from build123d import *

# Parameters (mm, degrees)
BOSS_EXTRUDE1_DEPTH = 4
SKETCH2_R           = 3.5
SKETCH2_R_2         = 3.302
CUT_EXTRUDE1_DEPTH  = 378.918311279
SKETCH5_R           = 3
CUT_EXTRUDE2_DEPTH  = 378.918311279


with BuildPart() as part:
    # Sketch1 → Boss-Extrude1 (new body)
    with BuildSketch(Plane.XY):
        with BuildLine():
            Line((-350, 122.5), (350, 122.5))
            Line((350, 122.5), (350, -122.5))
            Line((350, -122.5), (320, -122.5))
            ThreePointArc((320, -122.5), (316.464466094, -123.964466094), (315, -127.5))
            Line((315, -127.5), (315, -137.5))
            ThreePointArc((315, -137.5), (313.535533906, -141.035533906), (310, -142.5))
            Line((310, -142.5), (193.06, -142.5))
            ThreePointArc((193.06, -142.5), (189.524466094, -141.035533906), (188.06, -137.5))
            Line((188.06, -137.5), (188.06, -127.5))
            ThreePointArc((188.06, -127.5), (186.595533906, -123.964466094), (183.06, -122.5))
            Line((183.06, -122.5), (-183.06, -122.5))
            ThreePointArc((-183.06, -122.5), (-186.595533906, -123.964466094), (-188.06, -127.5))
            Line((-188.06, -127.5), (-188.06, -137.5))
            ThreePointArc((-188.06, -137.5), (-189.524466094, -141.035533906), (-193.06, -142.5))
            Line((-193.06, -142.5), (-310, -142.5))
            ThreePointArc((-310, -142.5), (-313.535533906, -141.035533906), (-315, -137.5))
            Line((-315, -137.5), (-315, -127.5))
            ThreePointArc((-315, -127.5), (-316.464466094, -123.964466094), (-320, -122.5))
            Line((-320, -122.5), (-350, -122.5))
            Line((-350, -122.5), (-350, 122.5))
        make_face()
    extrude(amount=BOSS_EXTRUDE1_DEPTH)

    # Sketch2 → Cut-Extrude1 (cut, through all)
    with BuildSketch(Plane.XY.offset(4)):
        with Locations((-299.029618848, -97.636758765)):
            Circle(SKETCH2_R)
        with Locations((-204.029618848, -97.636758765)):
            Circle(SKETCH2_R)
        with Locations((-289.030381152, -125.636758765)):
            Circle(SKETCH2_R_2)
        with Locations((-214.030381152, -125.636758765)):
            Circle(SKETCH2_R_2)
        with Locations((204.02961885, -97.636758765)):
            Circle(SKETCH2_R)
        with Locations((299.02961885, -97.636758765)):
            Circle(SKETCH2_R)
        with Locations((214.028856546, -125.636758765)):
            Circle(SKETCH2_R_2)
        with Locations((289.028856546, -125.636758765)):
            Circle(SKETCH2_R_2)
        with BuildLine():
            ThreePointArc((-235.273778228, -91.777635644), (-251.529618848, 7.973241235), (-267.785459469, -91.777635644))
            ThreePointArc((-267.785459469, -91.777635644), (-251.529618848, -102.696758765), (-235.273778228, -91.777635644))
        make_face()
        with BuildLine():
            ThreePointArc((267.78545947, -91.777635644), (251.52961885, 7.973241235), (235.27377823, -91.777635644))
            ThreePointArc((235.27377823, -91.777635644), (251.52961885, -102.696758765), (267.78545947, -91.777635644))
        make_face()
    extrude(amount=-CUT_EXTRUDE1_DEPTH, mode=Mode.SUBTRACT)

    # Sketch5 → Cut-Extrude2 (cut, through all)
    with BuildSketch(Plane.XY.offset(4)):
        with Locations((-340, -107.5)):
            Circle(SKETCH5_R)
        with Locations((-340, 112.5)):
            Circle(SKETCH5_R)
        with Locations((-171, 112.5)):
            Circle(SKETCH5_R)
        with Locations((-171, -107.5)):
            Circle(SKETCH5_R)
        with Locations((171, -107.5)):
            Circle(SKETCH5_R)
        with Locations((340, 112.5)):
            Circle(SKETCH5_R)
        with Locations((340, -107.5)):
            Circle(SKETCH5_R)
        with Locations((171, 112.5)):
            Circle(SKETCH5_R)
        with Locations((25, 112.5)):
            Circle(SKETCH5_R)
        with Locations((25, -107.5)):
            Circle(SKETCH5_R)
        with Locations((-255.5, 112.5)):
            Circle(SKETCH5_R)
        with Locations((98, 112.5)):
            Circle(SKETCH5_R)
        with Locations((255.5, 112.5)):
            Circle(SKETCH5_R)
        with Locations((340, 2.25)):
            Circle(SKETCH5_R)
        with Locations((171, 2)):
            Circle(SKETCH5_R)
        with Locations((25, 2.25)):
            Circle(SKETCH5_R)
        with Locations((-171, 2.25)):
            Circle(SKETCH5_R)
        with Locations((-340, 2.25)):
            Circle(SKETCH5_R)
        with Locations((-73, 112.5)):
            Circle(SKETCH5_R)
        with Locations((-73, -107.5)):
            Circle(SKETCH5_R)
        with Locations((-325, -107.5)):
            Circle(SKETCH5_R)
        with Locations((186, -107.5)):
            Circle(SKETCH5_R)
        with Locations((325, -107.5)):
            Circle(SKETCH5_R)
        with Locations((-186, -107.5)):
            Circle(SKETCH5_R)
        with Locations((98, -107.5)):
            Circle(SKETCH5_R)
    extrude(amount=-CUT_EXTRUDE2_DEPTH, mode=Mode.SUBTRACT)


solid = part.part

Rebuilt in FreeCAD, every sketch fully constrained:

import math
import FreeCAD as App
import Part
import Sketcher
from FreeCAD import Vector

doc = App.newDocument("Part")
body = doc.addObject("PartDesign::Body", "Body")

# Sketch on XY plane
sketch1 = body.newObject("Sketcher::SketchObject", "Sketch")
sketch1.AttachmentSupport = (doc.getObject("XY_Plane"), [""])
sketch1.MapMode = "FlatFace"
sketch1.addGeometry([
    Part.LineSegment(Vector(350, 122.5, 0), Vector(-350, 122.5, 0)),  # 0
    Part.LineSegment(Vector(-350, 122.5, 0), Vector(-350, -122.5, 0)),  # 1
    Part.LineSegment(Vector(-350, -122.5, 0), Vector(-320, -122.5, 0)),  # 2
    Part.ArcOfCircle(Part.Circle(Vector(-320, -127.5, 0), Vector(0, 0, 1), 5), math.radians(0), math.radians(90)),  # 3
    Part.LineSegment(Vector(-315, -127.5, 0), Vector(-315, -137.5, 0)),  # 4
    Part.ArcOfCircle(Part.Circle(Vector(-310, -137.5, 0), Vector(0, 0, 1), 5), math.radians(180), math.radians(270)),  # 5
    Part.LineSegment(Vector(-310, -142.5, 0), Vector(-193.06, -142.5, 0)),  # 6
    Part.ArcOfCircle(Part.Circle(Vector(-193.06, -137.5, 0), Vector(0, 0, 1), 5), math.radians(-90), math.radians(0)),  # 7
    Part.LineSegment(Vector(-188.06, -137.5, 0), Vector(-188.06, -127.5, 0)),  # 8
    Part.ArcOfCircle(Part.Circle(Vector(-183.06, -127.5, 0), Vector(0, 0, 1), 5), math.radians(90), math.radians(180)),  # 9
    Part.LineSegment(Vector(-183.06, -122.5, 0), Vector(183.06, -122.5, 0)),  # 10
    Part.ArcOfCircle(Part.Circle(Vector(183.06, -127.5, 0), Vector(0, 0, 1), 5), math.radians(0), math.radians(90)),  # 11
    Part.LineSegment(Vector(188.06, -127.5, 0), Vector(188.06, -137.5, 0)),  # 12
    Part.ArcOfCircle(Part.Circle(Vector(193.06, -137.5, 0), Vector(0, 0, 1), 5), math.radians(180), math.radians(270)),  # 13
    Part.LineSegment(Vector(193.06, -142.5, 0), Vector(310, -142.5, 0)),  # 14
    Part.ArcOfCircle(Part.Circle(Vector(310, -137.5, 0), Vector(0, 0, 1), 5), math.radians(-90), math.radians(0)),  # 15
    Part.LineSegment(Vector(315, -137.5, 0), Vector(315, -127.5, 0)),  # 16
    Part.ArcOfCircle(Part.Circle(Vector(320, -127.5, 0), Vector(0, 0, 1), 5), math.radians(90), math.radians(180)),  # 17
    Part.LineSegment(Vector(320, -122.5, 0), Vector(350, -122.5, 0)),  # 18
    Part.LineSegment(Vector(350, -122.5, 0), Vector(350, 122.5, 0)),  # 19
], False)
sketch1.addConstraint([
    Sketcher.Constraint("Coincident", 0, 2, 1, 1),
    Sketcher.Constraint("Coincident", 1, 2, 2, 1),
    Sketcher.Constraint("Tangent", 2, 2, 3, 2),
    Sketcher.Constraint("Tangent", 3, 1, 4, 1),
    Sketcher.Constraint("Tangent", 4, 2, 5, 1),
    Sketcher.Constraint("Tangent", 5, 2, 6, 1),
    Sketcher.Constraint("Tangent", 6, 2, 7, 1),
    Sketcher.Constraint("Tangent", 7, 2, 8, 1),
    Sketcher.Constraint("Tangent", 8, 2, 9, 2),
    Sketcher.Constraint("Tangent", 9, 1, 10, 1),
    Sketcher.Constraint("Tangent", 10, 2, 11, 2),
    Sketcher.Constraint("Tangent", 11, 1, 12, 1),
    Sketcher.Constraint("Tangent", 12, 2, 13, 1),
    Sketcher.Constraint("Tangent", 13, 2, 14, 1),
    Sketcher.Constraint("Tangent", 14, 2, 15, 1),
    Sketcher.Constraint("Tangent", 15, 2, 16, 1),
    Sketcher.Constraint("Tangent", 16, 2, 17, 2),
    Sketcher.Constraint("Tangent", 17, 1, 18, 1),
    Sketcher.Constraint("Coincident", 18, 2, 19, 1),
    Sketcher.Constraint("Coincident", 19, 2, 0, 1),
    Sketcher.Constraint("Horizontal", 0),
    Sketcher.Constraint("Vertical", 1),
    Sketcher.Constraint("Horizontal", 2),
    Sketcher.Constraint("Vertical", 4),
    Sketcher.Constraint("Horizontal", 6),
    Sketcher.Constraint("Vertical", 8),
    Sketcher.Constraint("Horizontal", 10),
    Sketcher.Constraint("Vertical", 12),
    Sketcher.Constraint("Horizontal", 14),
    Sketcher.Constraint("Vertical", 16),
    Sketcher.Constraint("Horizontal", 18),
    Sketcher.Constraint("Vertical", 19),
    Sketcher.Constraint("Equal", 3, 5),
    Sketcher.Constraint("Equal", 5, 7),
    Sketcher.Constraint("Equal", 7, 9),
    Sketcher.Constraint("Equal", 9, 11),
    Sketcher.Constraint("Equal", 11, 13),
    Sketcher.Constraint("Equal", 13, 15),
    Sketcher.Constraint("Equal", 15, 17),
    Sketcher.Constraint("Symmetric", 0, 2, 18, 2, -1, 1),
    Sketcher.Constraint("Symmetric", 7, 3, 13, 3, -2),
    Sketcher.Constraint("Symmetric", 3, 3, 17, 3, -2),
    Sketcher.Constraint("Horizontal", 3, 3, 9, 3),
    Sketcher.Constraint("Radius", 3, 5.0),
    Sketcher.Constraint("DistanceX", 0, 2, 0, 1, 700.0),
    Sketcher.Constraint("DistanceX", 2, 1, 2, 2, 30.0),
    Sketcher.Constraint("DistanceY", 1, 2, 1, 1, 245.0),
    Sketcher.Constraint("DistanceY", 4, 2, 4, 1, 10.0),
    Sketcher.Constraint("DistanceX", 6, 1, 6, 2, 116.94),
])
pad1 = body.newObject("PartDesign::Pad", "Pad")
pad1.Profile = sketch1
pad1.Length = 4

# Sketch on XY plane
sketch2 = body.newObject("Sketcher::SketchObject", "Sketch001")
sketch2.AttachmentSupport = (doc.getObject("XY_Plane"), [""])
sketch2.MapMode = "FlatFace"
sketch2.AttachmentOffset = App.Placement(Vector(0, 0, 4), App.Rotation())
sketch2.addGeometry([
    Part.Circle(Vector(-299.029619, -97.636759, 0), Vector(0, 0, 1), 3.5),  # 0
    Part.Circle(Vector(-204.029619, -97.636759, 0), Vector(0, 0, 1), 3.5),  # 1
    Part.Circle(Vector(-289.030381, -125.636759, 0), Vector(0, 0, 1), 3.302),  # 2
    Part.Circle(Vector(-214.030381, -125.636759, 0), Vector(0, 0, 1), 3.302),  # 3
    Part.Circle(Vector(204.029619, -97.636759, 0), Vector(0, 0, 1), 3.5),  # 4
    Part.Circle(Vector(299.029619, -97.636759, 0), Vector(0, 0, 1), 3.5),  # 5
    Part.Circle(Vector(214.028857, -125.636759, 0), Vector(0, 0, 1), 3.302),  # 6
    Part.Circle(Vector(289.028857, -125.636759, 0), Vector(0, 0, 1), 3.302),  # 7
    Part.ArcOfCircle(Part.Circle(Vector(-251.529619, -43.226759, 0), Vector(0, 0, 1), 51.2), math.radians(-71.488385), math.radians(251.488385)),  # 8
    Part.ArcOfCircle(Part.Circle(Vector(-251.529619, -85.136759, 0), Vector(0, 0, 1), 17.56), math.radians(-157.77888), math.radians(-22.22112)),  # 9
    Part.ArcOfCircle(Part.Circle(Vector(251.529619, -43.226759, 0), Vector(0, 0, 1), 51.2), math.radians(-71.488385), math.radians(251.488385)),  # 10
    Part.ArcOfCircle(Part.Circle(Vector(251.529619, -85.136759, 0), Vector(0, 0, 1), 17.56), math.radians(-157.77888), math.radians(-22.22112)),  # 11
], False)
sketch2.addConstraint([
    Sketcher.Constraint("Coincident", 8, 1, 9, 2),
    Sketcher.Constraint("Coincident", 9, 1, 8, 2),
    Sketcher.Constraint("Coincident", 10, 1, 11, 2),
    Sketcher.Constraint("Coincident", 11, 1, 10, 2),
    Sketcher.Constraint("Equal", 0, 1),
    Sketcher.Constraint("Equal", 2, 3),
    Sketcher.Constraint("Equal", 1, 4),
    Sketcher.Constraint("Equal", 4, 5),
    Sketcher.Constraint("Equal", 3, 6),
    Sketcher.Constraint("Equal", 6, 7),
    Sketcher.Constraint("Equal", 8, 10),
    Sketcher.Constraint("Equal", 9, 11),
    Sketcher.Constraint("Symmetric", 1, 3, 4, 3, -2),
    Sketcher.Constraint("Symmetric", 0, 3, 5, 3, -2),
    Sketcher.Constraint("Symmetric", 8, 3, 10, 3, -2),
    Sketcher.Constraint("Symmetric", 9, 3, 11, 3, -2),
    Sketcher.Constraint("Horizontal", 0, 3, 1, 3),
    Sketcher.Constraint("Horizontal", 2, 3, 3, 3),
    Sketcher.Constraint("Horizontal", 3, 3, 6, 3),
    Sketcher.Constraint("Horizontal", 6, 3, 7, 3),
    Sketcher.Constraint("Horizontal", 8, 1, 9, 1),
    Sketcher.Constraint("Diameter", 0, 7.0),
    Sketcher.Constraint("Radius", 8, 51.2),
    Sketcher.Constraint("Radius", 9, 17.56),
    Sketcher.Constraint("Diameter", 2, 6.604),
    Sketcher.Constraint("DistanceX", 0, 3, 1, 3, 95.0),
    Sketcher.Constraint("DistanceY", 2, 3, 0, 3, 28.0),
    Sketcher.Constraint("DistanceX", 2, 3, 3, 3, 75.0),
    Sketcher.Constraint("DistanceX", 6, 3, 7, 3, 75.0),
    Sketcher.Constraint("DistanceX", 0, 3, 8, 3, 47.5),
    Sketcher.Constraint("DistanceY", 0, 3, 9, 3, 12.5),
    Sketcher.Constraint("DistanceX", 3, 3, 4, 3, 418.06),
    Sketcher.Constraint("DistanceY", 0, 3, 8, 3, 54.41),
    Sketcher.Constraint("DistanceX", 0, 3, -1, 1, 299.029619),
    Sketcher.Constraint("DistanceY", 0, 3, -1, 1, 97.636759),
    Sketcher.Constraint("DistanceX", 6, 3, 11, 1, 21.244922),
])
pocket1 = body.newObject("PartDesign::Pocket", "Pocket")
pocket1.Profile = sketch2
pocket1.Type = "ThroughAll"

# Sketch on XY plane
sketch3 = body.newObject("Sketcher::SketchObject", "Sketch002")
sketch3.AttachmentSupport = (doc.getObject("XY_Plane"), [""])
sketch3.MapMode = "FlatFace"
sketch3.AttachmentOffset = App.Placement(Vector(0, 0, 4), App.Rotation())
sketch3.addGeometry([
    Part.Circle(Vector(-340, -107.5, 0), Vector(0, 0, 1), 3),  # 0
    Part.Circle(Vector(-340, 112.5, 0), Vector(0, 0, 1), 3),  # 1
    Part.Circle(Vector(-171, 112.5, 0), Vector(0, 0, 1), 3),  # 2
    Part.Circle(Vector(-171, -107.5, 0), Vector(0, 0, 1), 3),  # 3
    Part.Circle(Vector(171, -107.5, 0), Vector(0, 0, 1), 3),  # 4
    Part.Circle(Vector(340, 112.5, 0), Vector(0, 0, 1), 3),  # 5
    Part.Circle(Vector(340, -107.5, 0), Vector(0, 0, 1), 3),  # 6
    Part.Circle(Vector(171, 112.5, 0), Vector(0, 0, 1), 3),  # 7
    Part.Circle(Vector(25, 112.5, 0), Vector(0, 0, 1), 3),  # 8
    Part.Circle(Vector(25, -107.5, 0), Vector(0, 0, 1), 3),  # 9
    Part.Circle(Vector(-255.5, 112.5, 0), Vector(0, 0, 1), 3),  # 10
    Part.Circle(Vector(98, 112.5, 0), Vector(0, 0, 1), 3),  # 11
    Part.Circle(Vector(255.5, 112.5, 0), Vector(0, 0, 1), 3),  # 12
    Part.Circle(Vector(340, 2.25, 0), Vector(0, 0, 1), 3),  # 13
    Part.Circle(Vector(171, 2, 0), Vector(0, 0, 1), 3),  # 14
    Part.Circle(Vector(25, 2.25, 0), Vector(0, 0, 1), 3),  # 15
    Part.Circle(Vector(-171, 2.25, 0), Vector(0, 0, 1), 3),  # 16
    Part.Circle(Vector(-340, 2.25, 0), Vector(0, 0, 1), 3),  # 17
    Part.Circle(Vector(-73, 112.5, 0), Vector(0, 0, 1), 3),  # 18
    Part.Circle(Vector(-73, -107.5, 0), Vector(0, 0, 1), 3),  # 19
    Part.Circle(Vector(-325, -107.5, 0), Vector(0, 0, 1), 3),  # 20
    Part.Circle(Vector(186, -107.5, 0), Vector(0, 0, 1), 3),  # 21
    Part.Circle(Vector(325, -107.5, 0), Vector(0, 0, 1), 3),  # 22
    Part.Circle(Vector(-186, -107.5, 0), Vector(0, 0, 1), 3),  # 23
    Part.Circle(Vector(98, -107.5, 0), Vector(0, 0, 1), 3),  # 24
], False)
sketch3.addConstraint([
    Sketcher.Constraint("Equal", 0, 1),
    Sketcher.Constraint("Equal", 1, 2),
    Sketcher.Constraint("Equal", 2, 3),
    Sketcher.Constraint("Equal", 3, 4),
    Sketcher.Constraint("Equal", 4, 5),
    Sketcher.Constraint("Equal", 5, 6),
    Sketcher.Constraint("Equal", 6, 7),
    Sketcher.Constraint("Equal", 7, 8),
    Sketcher.Constraint("Equal", 8, 9),
    Sketcher.Constraint("Equal", 9, 10),
    Sketcher.Constraint("Equal", 10, 11),
    Sketcher.Constraint("Equal", 11, 12),
    Sketcher.Constraint("Equal", 12, 13),
    Sketcher.Constraint("Equal", 13, 14),
    Sketcher.Constraint("Equal", 14, 15),
    Sketcher.Constraint("Equal", 15, 16),
    Sketcher.Constraint("Equal", 16, 17),
    Sketcher.Constraint("Equal", 17, 18),
    Sketcher.Constraint("Equal", 18, 19),
    Sketcher.Constraint("Equal", 19, 20),
    Sketcher.Constraint("Equal", 20, 21),
    Sketcher.Constraint("Equal", 21, 22),
    Sketcher.Constraint("Equal", 22, 23),
    Sketcher.Constraint("Equal", 23, 24),
    Sketcher.Constraint("Symmetric", 3, 3, 4, 3, -2),
    Sketcher.Constraint("Symmetric", 1, 3, 5, 3, -2),
    Sketcher.Constraint("Symmetric", 0, 3, 6, 3, -2),
    Sketcher.Constraint("Symmetric", 2, 3, 7, 3, -2),
    Sketcher.Constraint("Symmetric", 10, 3, 12, 3, -2),
    Sketcher.Constraint("Symmetric", 13, 3, 17, 3, -2),
    Sketcher.Constraint("Symmetric", 20, 3, 22, 3, -2),
    Sketcher.Constraint("Symmetric", 21, 3, 23, 3, -2),
    Sketcher.Constraint("Horizontal", 1, 3, 2, 3),
    Sketcher.Constraint("Horizontal", 0, 3, 3, 3),
    Sketcher.Constraint("Horizontal", 7, 3, 8, 3),
    Sketcher.Constraint("Horizontal", 6, 3, 9, 3),
    Sketcher.Constraint("Horizontal", 8, 3, 10, 3),
    Sketcher.Constraint("Horizontal", 10, 3, 11, 3),
    Sketcher.Constraint("Horizontal", 13, 3, 15, 3),
    Sketcher.Constraint("Horizontal", 15, 3, 16, 3),
    Sketcher.Constraint("Horizontal", 12, 3, 18, 3),
    Sketcher.Constraint("Horizontal", 9, 3, 19, 3),
    Sketcher.Constraint("Horizontal", 19, 3, 20, 3),
    Sketcher.Constraint("Horizontal", 20, 3, 21, 3),
    Sketcher.Constraint("Horizontal", 23, 3, 24, 3),
    Sketcher.Constraint("Vertical", 0, 3, 1, 3),
    Sketcher.Constraint("Vertical", 2, 3, 3, 3),
    Sketcher.Constraint("Vertical", 8, 3, 9, 3),
    Sketcher.Constraint("Vertical", 6, 3, 13, 3),
    Sketcher.Constraint("Vertical", 7, 3, 14, 3),
    Sketcher.Constraint("Vertical", 9, 3, 15, 3),
    Sketcher.Constraint("Vertical", 3, 3, 16, 3),
    Sketcher.Constraint("Vertical", 18, 3, 19, 3),
    Sketcher.Constraint("Vertical", 11, 3, 24, 3),
    Sketcher.Constraint("Diameter", 0, 6.0),
    Sketcher.Constraint("DistanceX", 0, 3, -1, 1, 340.0),
    Sketcher.Constraint("DistanceX", 2, 3, -1, 1, 171.0),
    Sketcher.Constraint("DistanceX", -1, 1, 8, 3, 25.0),
    Sketcher.Constraint("DistanceX", -1, 1, 11, 3, 98.0),
    Sketcher.Constraint("DistanceY", -1, 1, 14, 3, 2.0),
    Sketcher.Constraint("DistanceX", 18, 3, -1, 1, 73.0),
    Sketcher.Constraint("DistanceX", 20, 3, -1, 1, 325.0),
    Sketcher.Constraint("DistanceX", -1, 1, 21, 3, 186.0),
    Sketcher.Constraint("DistanceY", 0, 3, 1, 3, 220.0),
    Sketcher.Constraint("DistanceY", 0, 3, -1, 1, 107.5),
    Sketcher.Constraint("DistanceX", 10, 3, -1, 1, 255.5),
    Sketcher.Constraint("DistanceY", -1, 1, 13, 3, 2.25),
])
pocket2 = body.newObject("PartDesign::Pocket", "Pocket001")
pocket2.Profile = sketch3
pocket2.Type = "ThroughAll"

doc.recompute()
